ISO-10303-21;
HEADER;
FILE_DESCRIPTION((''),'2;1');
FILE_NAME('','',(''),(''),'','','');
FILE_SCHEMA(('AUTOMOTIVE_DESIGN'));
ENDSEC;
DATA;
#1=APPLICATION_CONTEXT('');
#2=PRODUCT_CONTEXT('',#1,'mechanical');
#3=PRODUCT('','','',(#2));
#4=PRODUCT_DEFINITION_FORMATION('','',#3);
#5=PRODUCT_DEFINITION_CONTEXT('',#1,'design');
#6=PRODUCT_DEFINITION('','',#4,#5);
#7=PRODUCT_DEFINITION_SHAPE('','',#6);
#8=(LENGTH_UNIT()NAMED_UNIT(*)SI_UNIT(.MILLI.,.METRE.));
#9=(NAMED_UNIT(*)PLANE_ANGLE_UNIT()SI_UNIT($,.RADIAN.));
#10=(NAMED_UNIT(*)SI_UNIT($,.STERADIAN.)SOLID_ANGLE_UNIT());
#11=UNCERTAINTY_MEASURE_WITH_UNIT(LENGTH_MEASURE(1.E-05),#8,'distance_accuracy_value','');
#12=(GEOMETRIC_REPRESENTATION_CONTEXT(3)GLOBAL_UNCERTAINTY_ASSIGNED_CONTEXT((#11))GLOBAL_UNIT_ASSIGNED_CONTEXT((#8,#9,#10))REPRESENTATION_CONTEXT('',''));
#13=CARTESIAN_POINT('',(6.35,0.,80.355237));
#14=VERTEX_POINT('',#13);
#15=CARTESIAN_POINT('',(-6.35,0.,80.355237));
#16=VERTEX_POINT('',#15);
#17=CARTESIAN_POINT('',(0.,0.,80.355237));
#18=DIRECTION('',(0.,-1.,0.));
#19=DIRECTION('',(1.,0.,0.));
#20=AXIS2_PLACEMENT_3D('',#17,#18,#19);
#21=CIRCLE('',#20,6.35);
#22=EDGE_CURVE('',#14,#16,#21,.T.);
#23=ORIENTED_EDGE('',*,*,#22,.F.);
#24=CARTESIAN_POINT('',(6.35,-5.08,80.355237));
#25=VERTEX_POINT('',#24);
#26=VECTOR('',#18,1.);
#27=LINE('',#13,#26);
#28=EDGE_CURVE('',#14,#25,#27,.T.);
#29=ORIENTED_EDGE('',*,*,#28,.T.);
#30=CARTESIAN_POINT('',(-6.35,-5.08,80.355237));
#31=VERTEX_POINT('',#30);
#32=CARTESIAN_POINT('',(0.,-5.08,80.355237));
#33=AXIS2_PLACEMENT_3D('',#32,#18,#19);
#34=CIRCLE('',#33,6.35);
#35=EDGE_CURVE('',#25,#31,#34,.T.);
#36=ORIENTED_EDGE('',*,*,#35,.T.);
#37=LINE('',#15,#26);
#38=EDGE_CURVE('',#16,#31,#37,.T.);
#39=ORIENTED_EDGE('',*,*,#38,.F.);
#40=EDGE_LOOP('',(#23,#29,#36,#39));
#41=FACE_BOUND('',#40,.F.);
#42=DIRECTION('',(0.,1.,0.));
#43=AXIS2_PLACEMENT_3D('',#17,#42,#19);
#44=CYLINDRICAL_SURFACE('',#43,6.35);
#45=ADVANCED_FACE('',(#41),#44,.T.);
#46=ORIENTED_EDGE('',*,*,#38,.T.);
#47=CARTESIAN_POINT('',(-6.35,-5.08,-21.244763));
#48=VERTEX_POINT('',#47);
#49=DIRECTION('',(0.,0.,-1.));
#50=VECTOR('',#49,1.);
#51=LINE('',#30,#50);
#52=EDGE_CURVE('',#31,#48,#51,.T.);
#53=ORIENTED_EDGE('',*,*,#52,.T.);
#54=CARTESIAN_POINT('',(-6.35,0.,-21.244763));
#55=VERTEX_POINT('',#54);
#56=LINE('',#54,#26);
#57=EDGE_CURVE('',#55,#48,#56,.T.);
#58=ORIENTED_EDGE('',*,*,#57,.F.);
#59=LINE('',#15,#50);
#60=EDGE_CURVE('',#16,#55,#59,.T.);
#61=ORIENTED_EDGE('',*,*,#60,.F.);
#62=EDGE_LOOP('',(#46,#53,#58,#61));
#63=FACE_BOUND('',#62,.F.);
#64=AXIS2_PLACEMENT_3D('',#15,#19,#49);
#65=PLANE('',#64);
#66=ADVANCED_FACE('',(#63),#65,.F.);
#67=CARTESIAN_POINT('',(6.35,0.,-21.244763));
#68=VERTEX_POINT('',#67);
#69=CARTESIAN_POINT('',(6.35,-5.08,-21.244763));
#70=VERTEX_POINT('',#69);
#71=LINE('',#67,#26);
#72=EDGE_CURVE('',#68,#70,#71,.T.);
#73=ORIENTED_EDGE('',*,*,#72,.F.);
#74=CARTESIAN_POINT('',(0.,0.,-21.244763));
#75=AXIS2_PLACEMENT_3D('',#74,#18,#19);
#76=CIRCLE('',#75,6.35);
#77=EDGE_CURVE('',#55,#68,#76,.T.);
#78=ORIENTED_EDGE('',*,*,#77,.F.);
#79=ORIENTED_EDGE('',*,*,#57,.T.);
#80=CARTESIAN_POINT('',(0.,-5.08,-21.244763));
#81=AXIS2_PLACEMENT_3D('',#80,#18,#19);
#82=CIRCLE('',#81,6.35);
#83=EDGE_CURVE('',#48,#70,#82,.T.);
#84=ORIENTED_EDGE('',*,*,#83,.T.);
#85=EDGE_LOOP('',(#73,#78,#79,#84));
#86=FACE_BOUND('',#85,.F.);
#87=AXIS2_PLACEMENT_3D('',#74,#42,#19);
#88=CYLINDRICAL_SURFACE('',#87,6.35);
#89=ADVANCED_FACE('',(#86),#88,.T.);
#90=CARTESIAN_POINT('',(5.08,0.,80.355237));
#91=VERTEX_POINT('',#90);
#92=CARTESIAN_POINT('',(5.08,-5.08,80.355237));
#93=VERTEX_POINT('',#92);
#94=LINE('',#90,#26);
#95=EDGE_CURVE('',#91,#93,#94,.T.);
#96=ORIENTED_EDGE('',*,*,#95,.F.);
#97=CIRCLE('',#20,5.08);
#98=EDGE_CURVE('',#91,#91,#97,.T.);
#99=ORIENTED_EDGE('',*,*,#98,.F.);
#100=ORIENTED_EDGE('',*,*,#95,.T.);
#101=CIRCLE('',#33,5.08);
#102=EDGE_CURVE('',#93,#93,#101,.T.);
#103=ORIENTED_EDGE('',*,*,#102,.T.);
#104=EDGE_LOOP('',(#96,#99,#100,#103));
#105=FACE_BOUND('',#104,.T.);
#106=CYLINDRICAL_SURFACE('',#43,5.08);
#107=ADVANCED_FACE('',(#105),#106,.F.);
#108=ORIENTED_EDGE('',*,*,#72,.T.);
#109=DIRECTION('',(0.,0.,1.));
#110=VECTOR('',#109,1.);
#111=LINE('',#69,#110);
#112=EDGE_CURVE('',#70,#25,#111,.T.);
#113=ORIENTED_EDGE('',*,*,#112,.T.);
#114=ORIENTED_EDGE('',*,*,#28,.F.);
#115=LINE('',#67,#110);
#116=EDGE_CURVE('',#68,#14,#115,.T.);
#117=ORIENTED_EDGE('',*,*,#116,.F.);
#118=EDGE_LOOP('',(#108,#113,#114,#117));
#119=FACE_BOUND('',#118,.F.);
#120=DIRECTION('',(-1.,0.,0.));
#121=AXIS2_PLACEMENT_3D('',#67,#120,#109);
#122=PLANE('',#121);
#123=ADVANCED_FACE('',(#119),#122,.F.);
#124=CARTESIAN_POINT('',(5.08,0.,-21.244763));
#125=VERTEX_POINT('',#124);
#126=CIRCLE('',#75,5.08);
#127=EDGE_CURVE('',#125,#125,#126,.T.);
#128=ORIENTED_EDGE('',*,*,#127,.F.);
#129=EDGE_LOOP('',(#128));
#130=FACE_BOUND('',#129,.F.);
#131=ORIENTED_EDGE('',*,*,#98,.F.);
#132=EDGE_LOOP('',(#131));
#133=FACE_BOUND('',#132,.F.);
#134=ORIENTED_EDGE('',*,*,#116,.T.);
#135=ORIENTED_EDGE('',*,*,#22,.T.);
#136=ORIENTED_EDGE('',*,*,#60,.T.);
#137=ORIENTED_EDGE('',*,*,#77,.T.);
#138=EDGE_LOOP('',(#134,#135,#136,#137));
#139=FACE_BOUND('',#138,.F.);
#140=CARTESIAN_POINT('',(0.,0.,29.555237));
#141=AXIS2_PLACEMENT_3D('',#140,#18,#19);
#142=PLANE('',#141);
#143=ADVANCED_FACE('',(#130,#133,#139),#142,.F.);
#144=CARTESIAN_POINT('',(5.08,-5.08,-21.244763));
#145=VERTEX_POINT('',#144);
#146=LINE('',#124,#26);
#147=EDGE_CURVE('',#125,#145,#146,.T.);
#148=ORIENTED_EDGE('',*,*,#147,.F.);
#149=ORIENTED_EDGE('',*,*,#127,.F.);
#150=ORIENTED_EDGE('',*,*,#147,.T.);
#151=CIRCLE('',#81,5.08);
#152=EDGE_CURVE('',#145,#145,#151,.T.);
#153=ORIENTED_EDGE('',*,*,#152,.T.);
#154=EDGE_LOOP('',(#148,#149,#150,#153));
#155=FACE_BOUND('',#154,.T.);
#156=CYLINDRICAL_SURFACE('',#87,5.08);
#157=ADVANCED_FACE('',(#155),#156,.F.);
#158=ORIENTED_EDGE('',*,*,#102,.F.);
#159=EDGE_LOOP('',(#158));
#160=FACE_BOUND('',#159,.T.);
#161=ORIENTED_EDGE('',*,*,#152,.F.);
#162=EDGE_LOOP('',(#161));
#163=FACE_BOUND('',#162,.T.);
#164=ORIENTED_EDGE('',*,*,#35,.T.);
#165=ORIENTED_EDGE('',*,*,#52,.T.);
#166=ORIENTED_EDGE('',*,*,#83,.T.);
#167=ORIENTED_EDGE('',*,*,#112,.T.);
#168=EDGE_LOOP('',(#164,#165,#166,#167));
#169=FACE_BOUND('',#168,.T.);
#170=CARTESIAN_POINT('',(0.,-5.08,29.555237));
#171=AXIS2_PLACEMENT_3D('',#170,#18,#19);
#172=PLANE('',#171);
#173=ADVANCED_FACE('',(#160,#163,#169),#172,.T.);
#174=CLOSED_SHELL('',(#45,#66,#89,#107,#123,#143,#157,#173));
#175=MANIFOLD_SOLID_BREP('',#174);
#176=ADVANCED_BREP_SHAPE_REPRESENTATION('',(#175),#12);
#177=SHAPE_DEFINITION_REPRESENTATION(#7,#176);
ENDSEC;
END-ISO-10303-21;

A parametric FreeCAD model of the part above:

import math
import FreeCAD as App
import Part
import Sketcher
Q = App.Units.Quantity

doc = App.newDocument("Part")
body = doc.addObject("PartDesign::Body", "Body")

sketch1 = doc.addObject("Sketcher::SketchObject", "Sketch")
body.addObject(sketch1)
sketch1.AttachmentSupport = (doc.XZ_Plane, [""])
sketch1.MapMode = "FlatFace"
sketch1.addGeometry(Part.LineSegment(App.Vector(6, -21, 0), App.Vector(6, 80, 0)), False)
sketch1.addGeometry(Part.ArcOfCircle(Part.Circle(App.Vector(0, 80, 0), App.Vector(0, 0, 1), 6), math.radians(0), math.radians(180)), False)
sketch1.addGeometry(Part.LineSegment(App.Vector(-6, 80, 0), App.Vector(-6, -21, 0)), False)
sketch1.addGeometry(Part.ArcOfCircle(Part.Circle(App.Vector(0, -21, 0), App.Vector(0, 0, 1), 6), math.radians(180), math.radians(360)), False)
sketch1.addGeometry(Part.Circle(App.Vector(0, -21, 0), App.Vector(0, 0, 1), 5), False)
sketch1.addGeometry(Part.Circle(App.Vector(0, 80, 0), App.Vector(0, 0, 1), 5), False)
sketch1.addConstraint(Sketcher.Constraint("Tangent", 0, 2, 1, 1))
sketch1.addConstraint(Sketcher.Constraint("Tangent", 1, 2, 2, 1))
sketch1.addConstraint(Sketcher.Constraint("Tangent", 2, 2, 3, 1))
sketch1.addConstraint(Sketcher.Constraint("Tangent", 3, 2, 0, 1))
sketch1.addConstraint(Sketcher.Constraint("Vertical", 0))
sketch1.addConstraint(Sketcher.Constraint("Vertical", 2))
sketch1.addConstraint(Sketcher.Constraint("Coincident", 4, 3, 3, 3))
sketch1.addConstraint(Sketcher.Constraint("Coincident", 5, 3, 1, 3))
sketch1.addConstraint(Sketcher.Constraint("Equal", 4, 5))
sketch1.addConstraint(Sketcher.Constraint("PointOnObject", 1, 3, -2))
sketch1.addConstraint(Sketcher.Constraint("Diameter", 4, Q("0.4 in")))
sketch1.addConstraint(Sketcher.Constraint("DistanceY", 0, 1, 0, 2, Q("4 in")))
sketch1.addConstraint(Sketcher.Constraint("Radius", 1, Q("0.25 in")))
sketch1.addConstraint(Sketcher.Constraint("DistanceY", -1, 1, 1, 3, 80.355237))
pad1 = doc.addObject("PartDesign::Pad", "Pad")
body.addObject(pad1)
pad1.Profile = sketch1
pad1.Length = Q("0.2 in")

doc.recompute()
